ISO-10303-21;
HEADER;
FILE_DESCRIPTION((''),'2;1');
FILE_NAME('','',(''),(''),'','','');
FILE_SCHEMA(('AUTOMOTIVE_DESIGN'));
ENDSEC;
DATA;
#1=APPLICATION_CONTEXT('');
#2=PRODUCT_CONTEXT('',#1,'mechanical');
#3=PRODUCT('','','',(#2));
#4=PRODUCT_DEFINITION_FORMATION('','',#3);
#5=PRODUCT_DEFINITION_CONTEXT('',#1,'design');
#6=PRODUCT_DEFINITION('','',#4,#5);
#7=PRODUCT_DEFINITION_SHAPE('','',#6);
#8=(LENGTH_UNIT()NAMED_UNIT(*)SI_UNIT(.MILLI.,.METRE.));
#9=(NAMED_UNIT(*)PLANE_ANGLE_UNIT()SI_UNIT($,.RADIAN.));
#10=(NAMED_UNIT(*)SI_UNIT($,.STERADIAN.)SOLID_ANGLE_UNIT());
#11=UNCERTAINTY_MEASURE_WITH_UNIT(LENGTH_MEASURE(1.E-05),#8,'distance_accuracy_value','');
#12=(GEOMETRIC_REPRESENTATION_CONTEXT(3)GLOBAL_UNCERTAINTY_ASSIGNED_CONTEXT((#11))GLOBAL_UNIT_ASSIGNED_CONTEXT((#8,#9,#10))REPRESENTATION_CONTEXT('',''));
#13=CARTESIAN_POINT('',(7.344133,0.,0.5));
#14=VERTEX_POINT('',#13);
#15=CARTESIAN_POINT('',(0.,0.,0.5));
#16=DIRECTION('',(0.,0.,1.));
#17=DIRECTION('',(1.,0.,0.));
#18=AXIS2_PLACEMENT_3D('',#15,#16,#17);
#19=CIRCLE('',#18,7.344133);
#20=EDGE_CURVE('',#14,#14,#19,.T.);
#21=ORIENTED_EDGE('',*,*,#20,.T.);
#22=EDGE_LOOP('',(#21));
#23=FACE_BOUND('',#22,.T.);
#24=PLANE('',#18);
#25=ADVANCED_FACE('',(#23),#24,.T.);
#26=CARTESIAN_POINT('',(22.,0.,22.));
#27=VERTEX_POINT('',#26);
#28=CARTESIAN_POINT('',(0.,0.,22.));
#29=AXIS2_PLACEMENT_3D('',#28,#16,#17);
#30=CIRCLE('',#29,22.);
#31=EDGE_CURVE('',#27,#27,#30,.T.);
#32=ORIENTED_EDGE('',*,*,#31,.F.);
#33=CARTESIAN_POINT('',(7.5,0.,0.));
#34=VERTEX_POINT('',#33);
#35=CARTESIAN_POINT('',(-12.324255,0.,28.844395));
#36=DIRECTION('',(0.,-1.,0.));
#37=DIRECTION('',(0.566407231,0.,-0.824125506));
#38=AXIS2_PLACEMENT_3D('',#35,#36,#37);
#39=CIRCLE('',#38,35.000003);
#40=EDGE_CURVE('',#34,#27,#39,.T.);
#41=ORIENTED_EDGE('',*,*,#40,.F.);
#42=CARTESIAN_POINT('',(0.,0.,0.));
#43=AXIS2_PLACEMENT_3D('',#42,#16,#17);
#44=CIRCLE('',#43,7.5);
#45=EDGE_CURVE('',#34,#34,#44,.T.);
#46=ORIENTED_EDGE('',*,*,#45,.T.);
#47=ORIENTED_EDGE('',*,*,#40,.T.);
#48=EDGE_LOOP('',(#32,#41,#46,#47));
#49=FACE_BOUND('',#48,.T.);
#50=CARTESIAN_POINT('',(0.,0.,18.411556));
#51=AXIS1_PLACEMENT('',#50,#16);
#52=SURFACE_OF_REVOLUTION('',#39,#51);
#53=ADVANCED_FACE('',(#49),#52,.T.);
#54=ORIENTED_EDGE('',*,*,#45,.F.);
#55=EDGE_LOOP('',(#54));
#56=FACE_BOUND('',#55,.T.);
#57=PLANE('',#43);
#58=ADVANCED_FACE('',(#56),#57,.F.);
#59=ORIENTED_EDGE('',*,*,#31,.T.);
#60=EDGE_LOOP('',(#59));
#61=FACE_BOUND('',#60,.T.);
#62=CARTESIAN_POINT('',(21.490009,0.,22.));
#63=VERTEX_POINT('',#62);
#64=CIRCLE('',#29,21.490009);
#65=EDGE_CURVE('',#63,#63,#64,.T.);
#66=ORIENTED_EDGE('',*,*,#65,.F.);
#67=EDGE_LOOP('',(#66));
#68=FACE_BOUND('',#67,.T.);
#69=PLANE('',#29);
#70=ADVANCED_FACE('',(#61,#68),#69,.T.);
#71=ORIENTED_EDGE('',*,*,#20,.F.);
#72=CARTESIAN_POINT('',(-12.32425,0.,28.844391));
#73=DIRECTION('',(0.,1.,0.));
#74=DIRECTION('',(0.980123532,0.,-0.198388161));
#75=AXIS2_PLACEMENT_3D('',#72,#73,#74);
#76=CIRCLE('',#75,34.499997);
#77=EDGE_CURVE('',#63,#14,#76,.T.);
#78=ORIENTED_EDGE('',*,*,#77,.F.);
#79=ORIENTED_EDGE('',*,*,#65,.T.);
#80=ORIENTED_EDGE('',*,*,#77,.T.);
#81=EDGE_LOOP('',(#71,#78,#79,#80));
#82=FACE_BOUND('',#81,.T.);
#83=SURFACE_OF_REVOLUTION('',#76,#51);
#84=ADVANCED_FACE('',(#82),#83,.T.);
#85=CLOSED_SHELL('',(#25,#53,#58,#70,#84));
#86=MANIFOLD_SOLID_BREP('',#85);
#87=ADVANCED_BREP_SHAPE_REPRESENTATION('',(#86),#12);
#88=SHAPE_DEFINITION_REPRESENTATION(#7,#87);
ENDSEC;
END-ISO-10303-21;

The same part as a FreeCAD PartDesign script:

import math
import FreeCAD as App
import Part
import Sketcher
from FreeCAD import Vector
Q = App.Units.Quantity

doc = App.newDocument("Part")
body = doc.addObject("PartDesign::Body", "Body")

# Sketch on XZ plane
sketch1 = body.newObject("Sketcher::SketchObject", "Sketch")
sketch1.AttachmentSupport = (doc.getObject("XZ_Plane"), [""])
sketch1.MapMode = "FlatFace"
sketch1.addGeometry(Part.LineSegment(Vector(0, 0.5, 0), Vector(0, 0, 0)), False)
sketch1.addGeometry(Part.LineSegment(Vector(0, 0, 0), Vector(7.5, 0, 0)), False)
sketch1.addGeometry(Part.ArcOfCircle(Part.Circle(Vector(-12.324255, 28.844395, 0), Vector(0, 0, 1), 35.000003), math.radians(-55.499931), math.radians(-11.277096)), False)
sketch1.addGeometry(Part.LineSegment(Vector(22, 22, 0), Vector(21.490009, 22, 0)), False)
sketch1.addGeometry(Part.ArcOfCircle(Part.Circle(Vector(-12.32425, 28.844391, 0), Vector(0, 0, 1), 34.499997), math.radians(-55.242933), math.radians(-11.442719)), False)
sketch1.addGeometry(Part.LineSegment(Vector(7.344133, 0.5, 0), Vector(0, 0.5, 0)), False)
sketch1.addConstraint(Sketcher.Constraint("Coincident", 0, 2, 1, 1))
sketch1.addConstraint(Sketcher.Constraint("Coincident", 1, 2, 2, 1))
sketch1.addConstraint(Sketcher.Constraint("Coincident", 2, 2, 3, 1))
sketch1.addConstraint(Sketcher.Constraint("Coincident", 3, 2, 4, 2))
sketch1.addConstraint(Sketcher.Constraint("Coincident", 4, 1, 5, 1))
sketch1.addConstraint(Sketcher.Constraint("Coincident", 5, 2, 0, 1))
sketch1.addConstraint(Sketcher.Constraint("Vertical", 0))
sketch1.addConstraint(Sketcher.Constraint("Horizontal", 1))
sketch1.addConstraint(Sketcher.Constraint("Horizontal", 3))
sketch1.addConstraint(Sketcher.Constraint("Horizontal", 5))
sketch1.addConstraint(Sketcher.Constraint("Coincident", 0, 2, -1, 1))
sketch1.addConstraint(Sketcher.Constraint("Coincident", 4, 3, 2, 3))
sketch1.addConstraint(Sketcher.Constraint("DistanceX", 1, 1, 1, 2, Q("7.5 mm")))
sketch1.addConstraint(Sketcher.Constraint("DistanceY", 0, 2, 0, 1, Q("0.5 mm")))
sketch1.addConstraint(Sketcher.Constraint("DistanceX", -1, 1, 2, 2, Q("22 mm")))
sketch1.addConstraint(Sketcher.Constraint("DistanceY", -1, 1, 2, 2, Q("22 mm")))
sketch1.addConstraint(Sketcher.Constraint("Radius", 2, Q("35.000003 mm")))
sketch1.addConstraint(Sketcher.Constraint("Radius", 4, Q("34.499997 mm")))
revolution = body.newObject("PartDesign::Revolution", "Revolution")
revolution.Profile = sketch1
revolution.ReferenceAxis = (sketch1, ["V_Axis"])
revolution.Angle = 360

doc.recompute()
